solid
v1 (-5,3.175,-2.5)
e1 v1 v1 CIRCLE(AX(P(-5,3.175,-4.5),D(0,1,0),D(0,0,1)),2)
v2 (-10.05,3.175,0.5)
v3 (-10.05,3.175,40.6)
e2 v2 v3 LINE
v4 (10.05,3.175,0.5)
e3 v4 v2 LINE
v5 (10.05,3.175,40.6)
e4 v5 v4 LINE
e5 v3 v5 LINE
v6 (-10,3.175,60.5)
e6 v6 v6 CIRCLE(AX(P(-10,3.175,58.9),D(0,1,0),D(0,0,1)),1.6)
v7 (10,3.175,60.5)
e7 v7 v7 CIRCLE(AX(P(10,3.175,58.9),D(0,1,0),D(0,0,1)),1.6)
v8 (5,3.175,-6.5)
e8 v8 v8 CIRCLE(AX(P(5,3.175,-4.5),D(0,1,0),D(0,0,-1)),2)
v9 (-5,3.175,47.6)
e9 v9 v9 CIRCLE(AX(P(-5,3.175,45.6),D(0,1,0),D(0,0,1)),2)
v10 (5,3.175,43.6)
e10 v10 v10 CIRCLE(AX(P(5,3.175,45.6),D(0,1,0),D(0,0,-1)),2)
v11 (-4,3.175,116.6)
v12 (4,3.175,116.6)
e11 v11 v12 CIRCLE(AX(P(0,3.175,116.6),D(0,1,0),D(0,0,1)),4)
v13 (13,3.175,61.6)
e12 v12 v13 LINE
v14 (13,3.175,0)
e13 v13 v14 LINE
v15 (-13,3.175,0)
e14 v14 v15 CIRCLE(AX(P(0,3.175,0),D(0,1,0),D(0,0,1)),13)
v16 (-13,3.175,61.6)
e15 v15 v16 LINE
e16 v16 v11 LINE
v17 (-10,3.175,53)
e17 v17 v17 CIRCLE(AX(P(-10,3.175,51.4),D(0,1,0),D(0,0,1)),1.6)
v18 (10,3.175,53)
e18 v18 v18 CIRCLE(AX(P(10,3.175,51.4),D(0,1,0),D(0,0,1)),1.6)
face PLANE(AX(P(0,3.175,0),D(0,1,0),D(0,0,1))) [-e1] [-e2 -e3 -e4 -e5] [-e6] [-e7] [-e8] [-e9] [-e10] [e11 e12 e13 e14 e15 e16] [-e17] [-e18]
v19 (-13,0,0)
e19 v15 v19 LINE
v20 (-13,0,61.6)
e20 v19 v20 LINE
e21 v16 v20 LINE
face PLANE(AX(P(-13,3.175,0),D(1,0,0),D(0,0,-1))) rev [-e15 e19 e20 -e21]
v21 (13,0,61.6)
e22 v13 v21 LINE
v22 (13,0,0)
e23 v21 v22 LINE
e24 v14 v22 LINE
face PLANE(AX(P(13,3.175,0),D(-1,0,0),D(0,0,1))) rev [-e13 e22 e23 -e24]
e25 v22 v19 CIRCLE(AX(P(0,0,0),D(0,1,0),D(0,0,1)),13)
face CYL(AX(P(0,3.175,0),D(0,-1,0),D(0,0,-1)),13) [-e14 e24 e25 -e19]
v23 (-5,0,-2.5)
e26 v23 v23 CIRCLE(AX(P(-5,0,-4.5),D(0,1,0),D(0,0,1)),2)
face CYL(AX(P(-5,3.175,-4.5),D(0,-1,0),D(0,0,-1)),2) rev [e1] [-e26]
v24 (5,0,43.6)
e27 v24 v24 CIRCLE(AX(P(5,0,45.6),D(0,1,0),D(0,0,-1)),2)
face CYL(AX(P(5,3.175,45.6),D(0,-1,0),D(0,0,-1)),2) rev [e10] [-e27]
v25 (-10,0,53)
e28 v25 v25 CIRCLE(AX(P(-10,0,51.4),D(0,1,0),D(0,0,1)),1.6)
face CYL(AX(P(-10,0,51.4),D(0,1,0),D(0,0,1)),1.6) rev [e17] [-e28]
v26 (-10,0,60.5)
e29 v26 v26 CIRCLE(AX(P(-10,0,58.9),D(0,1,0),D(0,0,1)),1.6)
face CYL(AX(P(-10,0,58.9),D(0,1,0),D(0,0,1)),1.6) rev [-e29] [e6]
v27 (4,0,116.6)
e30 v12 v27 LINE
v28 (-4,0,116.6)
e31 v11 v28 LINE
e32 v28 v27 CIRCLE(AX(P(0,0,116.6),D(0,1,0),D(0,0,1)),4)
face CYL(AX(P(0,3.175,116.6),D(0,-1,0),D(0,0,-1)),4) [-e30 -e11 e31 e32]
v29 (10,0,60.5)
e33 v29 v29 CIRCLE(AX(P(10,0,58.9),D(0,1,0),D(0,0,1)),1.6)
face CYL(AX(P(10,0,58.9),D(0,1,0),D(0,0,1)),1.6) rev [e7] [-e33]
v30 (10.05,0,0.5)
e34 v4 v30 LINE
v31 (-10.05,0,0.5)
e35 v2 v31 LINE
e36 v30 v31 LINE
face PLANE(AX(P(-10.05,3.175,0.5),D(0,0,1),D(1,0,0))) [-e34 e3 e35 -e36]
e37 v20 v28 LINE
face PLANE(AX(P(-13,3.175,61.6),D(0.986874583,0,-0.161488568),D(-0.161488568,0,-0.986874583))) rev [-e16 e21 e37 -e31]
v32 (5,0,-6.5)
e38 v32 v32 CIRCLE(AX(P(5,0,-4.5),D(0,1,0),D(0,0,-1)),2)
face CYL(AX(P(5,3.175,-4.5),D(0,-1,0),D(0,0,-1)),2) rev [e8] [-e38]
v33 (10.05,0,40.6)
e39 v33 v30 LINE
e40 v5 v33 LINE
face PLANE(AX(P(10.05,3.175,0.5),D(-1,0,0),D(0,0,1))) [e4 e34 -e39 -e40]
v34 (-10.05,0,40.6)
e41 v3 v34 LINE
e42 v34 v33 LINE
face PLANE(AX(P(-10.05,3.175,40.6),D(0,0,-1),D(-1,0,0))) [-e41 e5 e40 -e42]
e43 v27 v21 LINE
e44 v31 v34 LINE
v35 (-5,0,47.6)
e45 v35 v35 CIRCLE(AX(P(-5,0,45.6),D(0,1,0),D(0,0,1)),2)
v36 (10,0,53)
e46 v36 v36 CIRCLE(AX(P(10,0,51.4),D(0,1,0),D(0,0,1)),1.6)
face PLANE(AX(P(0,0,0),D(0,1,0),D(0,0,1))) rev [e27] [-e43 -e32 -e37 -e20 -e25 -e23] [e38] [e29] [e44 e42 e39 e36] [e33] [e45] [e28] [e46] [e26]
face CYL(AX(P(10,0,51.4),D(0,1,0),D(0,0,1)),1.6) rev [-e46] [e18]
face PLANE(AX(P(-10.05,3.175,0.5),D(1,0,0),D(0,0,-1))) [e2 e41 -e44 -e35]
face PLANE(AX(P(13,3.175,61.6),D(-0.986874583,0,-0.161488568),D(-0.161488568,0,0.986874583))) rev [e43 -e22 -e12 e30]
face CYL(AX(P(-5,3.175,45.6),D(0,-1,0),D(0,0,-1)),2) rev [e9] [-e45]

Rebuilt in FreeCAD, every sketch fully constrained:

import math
import FreeCAD as App
import Part
import Sketcher
from FreeCAD import Vector
Q = App.Units.Quantity

doc = App.newDocument("Part")
body = doc.addObject("PartDesign::Body", "Body")

# Sketch on XZ plane
sketch1 = body.newObject("Sketcher::SketchObject", "Sketch")
sketch1.AttachmentSupport = (doc.getObject("XZ_Plane"), [""])
sketch1.MapMode = "FlatFace"
sketch1.addGeometry(Part.LineSegment(Vector(-13, 0, 0), Vector(-13, 61.6, 0)), False)
sketch1.addGeometry(Part.LineSegment(Vector(-13, 61.6, 0), Vector(-4, 116.6, 0)), False)
sketch1.addGeometry(Part.ArcOfCircle(Part.Circle(Vector(0, 116.6, 0), Vector(0, 0, 1), 4), math.radians(0), math.radians(180)), False)
sketch1.addGeometry(Part.LineSegment(Vector(4, 116.6, 0), Vector(13, 61.6, 0)), False)
sketch1.addGeometry(Part.LineSegment(Vector(13, 61.6, 0), Vector(13, 0, 0)), False)
sketch1.addGeometry(Part.ArcOfCircle(Part.Circle(Vector(0, 0, 0), Vector(0, 0, 1), 13), math.radians(180), math.radians(360)), False)
sketch1.addGeometry(Part.Circle(Vector(-5, 45.6, 0), Vector(0, 0, 1), 2), False)
sketch1.addGeometry(Part.Circle(Vector(5, 45.6, 0), Vector(0, 0, 1), 2), False)
sketch1.addGeometry(Part.LineSegment(Vector(10.1, 40.6, 0), Vector(-10.1, 40.6, 0)), False)
sketch1.addGeometry(Part.LineSegment(Vector(-10.1, 40.6, 0), Vector(-10.1, 0.5, 0)), False)
sketch1.addGeometry(Part.LineSegment(Vector(-10.1, 0.5, 0), Vector(10.1, 0.5, 0)), False)
sketch1.addGeometry(Part.LineSegment(Vector(10.1, 0.5, 0), Vector(10.1, 40.6, 0)), False)
sketch1.addGeometry(Part.Circle(Vector(-5, -4.5, 0), Vector(0, 0, 1), 2), False)
sketch1.addGeometry(Part.Circle(Vector(5, -4.5, 0), Vector(0, 0, 1), 2), False)
sketch1.addConstraint(Sketcher.Constraint("Coincident", 0, 2, 1, 1))
sketch1.addConstraint(Sketcher.Constraint("Coincident", 1, 2, 2, 2))
sketch1.addConstraint(Sketcher.Constraint("Coincident", 2, 1, 3, 1))
sketch1.addConstraint(Sketcher.Constraint("Coincident", 3, 2, 4, 1))
sketch1.addConstraint(Sketcher.Constraint("Tangent", 4, 2, 5, 2))
sketch1.addConstraint(Sketcher.Constraint("Tangent", 5, 1, 0, 1))
sketch1.addConstraint(Sketcher.Constraint("Coincident", 8, 2, 9, 1))
sketch1.addConstraint(Sketcher.Constraint("Coincident", 9, 2, 10, 1))
sketch1.addConstraint(Sketcher.Constraint("Coincident", 10, 2, 11, 1))
sketch1.addConstraint(Sketcher.Constraint("Coincident", 11, 2, 8, 1))
sketch1.addConstraint(Sketcher.Constraint("Vertical", 0))
sketch1.addConstraint(Sketcher.Constraint("Vertical", 4))
sketch1.addConstraint(Sketcher.Constraint("Horizontal", 8))
sketch1.addConstraint(Sketcher.Constraint("Vertical", 9))
sketch1.addConstraint(Sketcher.Constraint("Horizontal", 10))
sketch1.addConstraint(Sketcher.Constraint("Vertical", 11))
sketch1.addConstraint(Sketcher.Constraint("Coincident", 5, 3, -1, 1))
sketch1.addConstraint(Sketcher.Constraint("Equal", 6, 7))
sketch1.addConstraint(Sketcher.Constraint("Equal", 7, 12))
sketch1.addConstraint(Sketcher.Constraint("Equal", 12, 13))
sketch1.addConstraint(Sketcher.Constraint("Symmetric", 6, 3, 7, 3, -2))
sketch1.addConstraint(Sketcher.Constraint("Symmetric", 12, 3, 13, 3, -2))
sketch1.addConstraint(Sketcher.Constraint("Symmetric", 1, 2, 2, 1, -2))
sketch1.addConstraint(Sketcher.Constraint("Horizontal", 2, 3, 1, 2))
sketch1.addConstraint(Sketcher.Constraint("Horizontal", 0, 2, 3, 2))
sketch1.addConstraint(Sketcher.Constraint("Vertical", 6, 3, 12, 3))
sketch1.addConstraint(Sketcher.Constraint("Diameter", 6, Q("4 mm")))
sketch1.addConstraint(Sketcher.Constraint("Radius", 2, Q("4 mm")))
sketch1.addConstraint(Sketcher.Constraint("Radius", 5, Q("13 mm")))
sketch1.addConstraint(Sketcher.Constraint("DistanceX", 8, 2, 8, 1, Q("20.1 mm")))
sketch1.addConstraint(Sketcher.Constraint("DistanceY", 0, 1, 0, 2, Q("61.6 mm")))
sketch1.addConstraint(Sketcher.Constraint("DistanceY", 9, 2, 9, 1, Q("40.1 mm")))
sketch1.addConstraint(Sketcher.Constraint("DistanceX", 6, 3, -1, 1, Q("5 mm")))
sketch1.addConstraint(Sketcher.Constraint("DistanceY", 6, 3, 2, 3, Q("71 mm")))
sketch1.addConstraint(Sketcher.Constraint("DistanceY", 6, 3, 0, 2, Q("16 mm")))
sketch1.addConstraint(Sketcher.Constraint("DistanceY", 8, 2, 6, 3, Q("5 mm")))
sketch1.addConstraint(Sketcher.Constraint("DistanceY", 12, 3, 9, 2, Q("5 mm")))
sketch1.addConstraint(Sketcher.Constraint("DistanceX", 8, 2, -1, 1, Q("10.05 mm")))
pad1 = body.newObject("PartDesign::Pad", "Pad")
pad1.Profile = sketch1
pad1.Length = 3.175
pad1.Reversed = True

# Sketch on XZ plane
sketch2 = body.newObject("Sketcher::SketchObject", "Sketch001")
sketch2.AttachmentSupport = (doc.getObject("XZ_Plane"), [""])
sketch2.MapMode = "FlatFace"
sketch2.AttachmentOffset = App.Placement(Vector(0, 0, -3.175), App.Rotation())
sketch2.addGeometry(Part.Circle(Vector(10, 58.9, 0), Vector(0, 0, 1), 1.6), False)
sketch2.addGeometry(Part.Circle(Vector(10, 51.4, 0), Vector(0, 0, 1), 1.6), False)
sketch2.addGeometry(Part.Circle(Vector(-10, 58.9, 0), Vector(0, 0, 1), 1.6), False)
sketch2.addGeometry(Part.Circle(Vector(-10, 51.4, 0), Vector(0, 0, 1), 1.6), False)
sketch2.addConstraint(Sketcher.Constraint("Equal", 0, 1))
sketch2.addConstraint(Sketcher.Constraint("Equal", 1, 2))
sketch2.addConstraint(Sketcher.Constraint("Equal", 2, 3))
sketch2.addConstraint(Sketcher.Constraint("Symmetric", 0, 3, 2, 3, -2))
sketch2.addConstraint(Sketcher.Constraint("Symmetric", 1, 3, 3, 3, -2))
sketch2.addConstraint(Sketcher.Constraint("Vertical", 0, 3, 1, 3))
sketch2.addConstraint(Sketcher.Constraint("Diameter", 0, Q("3.2 mm")))
sketch2.addConstraint(Sketcher.Constraint("DistanceX", -1, 1, 0, 3, Q("10 mm")))
sketch2.addConstraint(Sketcher.Constraint("DistanceY", -1, 1, 0, 3, Q("58.9 mm")))
sketch2.addConstraint(Sketcher.Constraint("DistanceY", -1, 1, 1, 3, Q("51.4 mm")))
pocket1 = body.newObject("PartDesign::Pocket", "Pocket")
pocket1.Profile = sketch2
pocket1.Type = "ThroughAll"
pocket1.Midplane = True

doc.recompute()
